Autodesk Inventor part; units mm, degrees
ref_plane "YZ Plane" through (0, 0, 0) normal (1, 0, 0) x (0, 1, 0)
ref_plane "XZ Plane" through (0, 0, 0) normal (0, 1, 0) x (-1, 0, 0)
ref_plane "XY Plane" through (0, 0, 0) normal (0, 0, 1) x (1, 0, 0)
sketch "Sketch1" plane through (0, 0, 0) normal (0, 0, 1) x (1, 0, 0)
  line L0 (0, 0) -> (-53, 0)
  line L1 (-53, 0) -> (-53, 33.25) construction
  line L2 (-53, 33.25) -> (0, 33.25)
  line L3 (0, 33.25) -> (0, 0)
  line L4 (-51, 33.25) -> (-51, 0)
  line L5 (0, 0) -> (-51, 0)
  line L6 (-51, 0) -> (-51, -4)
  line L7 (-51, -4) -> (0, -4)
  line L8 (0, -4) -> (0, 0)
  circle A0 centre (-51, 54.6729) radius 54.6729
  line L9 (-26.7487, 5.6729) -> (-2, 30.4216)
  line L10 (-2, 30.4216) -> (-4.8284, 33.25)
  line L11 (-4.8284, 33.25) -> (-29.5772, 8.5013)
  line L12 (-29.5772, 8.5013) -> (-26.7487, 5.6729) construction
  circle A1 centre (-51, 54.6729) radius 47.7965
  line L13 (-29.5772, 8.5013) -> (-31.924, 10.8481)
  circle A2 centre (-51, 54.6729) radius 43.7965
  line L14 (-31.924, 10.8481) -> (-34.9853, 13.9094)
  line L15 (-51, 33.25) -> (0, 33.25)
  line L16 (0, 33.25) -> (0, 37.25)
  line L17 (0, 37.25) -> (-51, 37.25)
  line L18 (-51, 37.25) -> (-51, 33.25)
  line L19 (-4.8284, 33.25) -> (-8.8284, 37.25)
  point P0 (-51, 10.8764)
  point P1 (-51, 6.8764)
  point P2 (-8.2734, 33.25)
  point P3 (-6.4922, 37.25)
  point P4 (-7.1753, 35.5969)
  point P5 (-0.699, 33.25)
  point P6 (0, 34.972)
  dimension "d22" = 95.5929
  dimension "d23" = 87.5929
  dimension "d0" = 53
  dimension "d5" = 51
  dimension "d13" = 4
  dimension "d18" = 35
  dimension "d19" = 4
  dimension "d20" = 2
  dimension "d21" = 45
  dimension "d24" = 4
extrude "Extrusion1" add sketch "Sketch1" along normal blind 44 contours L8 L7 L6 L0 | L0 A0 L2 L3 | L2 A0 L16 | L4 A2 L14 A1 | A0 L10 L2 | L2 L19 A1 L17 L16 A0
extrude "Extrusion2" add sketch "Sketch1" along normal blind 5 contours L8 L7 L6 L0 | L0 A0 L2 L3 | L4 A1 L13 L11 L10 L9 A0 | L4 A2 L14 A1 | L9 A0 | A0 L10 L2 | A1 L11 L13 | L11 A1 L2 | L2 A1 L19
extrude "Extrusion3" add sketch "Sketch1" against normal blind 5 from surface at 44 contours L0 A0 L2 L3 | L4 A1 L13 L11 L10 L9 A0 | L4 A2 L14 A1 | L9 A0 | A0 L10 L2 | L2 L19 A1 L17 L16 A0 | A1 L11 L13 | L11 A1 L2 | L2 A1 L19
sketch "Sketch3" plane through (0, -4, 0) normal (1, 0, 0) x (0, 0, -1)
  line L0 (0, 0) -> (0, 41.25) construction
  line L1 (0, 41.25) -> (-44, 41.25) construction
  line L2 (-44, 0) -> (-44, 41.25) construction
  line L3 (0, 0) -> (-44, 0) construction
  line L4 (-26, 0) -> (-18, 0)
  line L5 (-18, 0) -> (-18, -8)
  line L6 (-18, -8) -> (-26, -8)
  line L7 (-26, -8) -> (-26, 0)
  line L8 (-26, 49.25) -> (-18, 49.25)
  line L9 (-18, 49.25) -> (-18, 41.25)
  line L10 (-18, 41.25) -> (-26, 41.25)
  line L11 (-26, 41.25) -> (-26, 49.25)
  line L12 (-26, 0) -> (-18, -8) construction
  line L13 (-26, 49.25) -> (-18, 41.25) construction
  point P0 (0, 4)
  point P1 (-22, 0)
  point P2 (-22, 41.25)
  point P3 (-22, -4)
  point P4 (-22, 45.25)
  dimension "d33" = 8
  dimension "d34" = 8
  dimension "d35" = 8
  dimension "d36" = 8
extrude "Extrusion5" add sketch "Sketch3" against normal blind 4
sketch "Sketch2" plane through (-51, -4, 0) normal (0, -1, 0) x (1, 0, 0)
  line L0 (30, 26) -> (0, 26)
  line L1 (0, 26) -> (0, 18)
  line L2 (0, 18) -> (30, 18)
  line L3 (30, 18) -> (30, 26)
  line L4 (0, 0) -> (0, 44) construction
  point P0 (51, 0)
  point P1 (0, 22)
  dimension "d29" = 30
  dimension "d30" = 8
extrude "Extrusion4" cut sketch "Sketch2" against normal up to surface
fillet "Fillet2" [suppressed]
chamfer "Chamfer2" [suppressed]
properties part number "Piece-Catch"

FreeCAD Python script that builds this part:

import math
import FreeCAD as App
import Part
import Sketcher
Q = App.Units.Quantity

doc = App.newDocument("Part")
body = doc.addObject("PartDesign::Body", "Body")
body.AllowCompound = True

# Sketch on XY plane
sketch1 = body.newObject("Sketcher::SketchObject", "Sketch")
sketch1.AttachmentSupport = (doc.getObject("XY_Plane"), [""])
sketch1.MapMode = "FlatFace"
sketch1.addGeometry([
    Part.LineSegment(App.Vector(0, -4, 0), App.Vector(0, 37.2, 0)),  # 0
    Part.LineSegment(App.Vector(0, 37.2, 0), App.Vector(-6.5, 37.2, 0)),  # 1
    Part.ArcOfCircle(Part.Circle(App.Vector(-51, 54.7, 0), App.Vector(0, 0, 1), 47.8), math.radians(-23.52), math.radians(-21.38)),  # 2
    Part.LineSegment(App.Vector(-7.2, 35.6, 0), App.Vector(-2, 30.4, 0)),  # 3
    Part.ArcOfCircle(Part.Circle(App.Vector(-51, 54.7, 0), App.Vector(0, 0, 1), 54.7), math.radians(-90), math.radians(-26)),  # 4
    Part.LineSegment(App.Vector(-51, 0, 0), App.Vector(-51, -4, 0)),  # 5
    Part.LineSegment(App.Vector(-51, -4, 0), App.Vector(0, -4, 0)),  # 6
    Part.LineSegment(App.Vector(-51, 10.9, 0), App.Vector(-51, 6.9, 0)),  # 7
    Part.ArcOfCircle(Part.Circle(App.Vector(-51, 54.7, 0), App.Vector(0, 0, 1), 47.8), math.radians(-90), math.radians(-66)),  # 8
    Part.LineSegment(App.Vector(-31.9, 10.8, 0), App.Vector(-35, 13.9, 0)),  # 9
    Part.ArcOfCircle(Part.Circle(App.Vector(-51, 54.7, 0), App.Vector(0, 0, 1), 43.8), math.radians(-90), math.radians(-69)),  # 10
], False)
sketch1.addConstraint([
    Sketcher.Constraint("Coincident", 0, 2, 1, 1),
    Sketcher.Constraint("Coincident", 1, 2, 2, 2),
    Sketcher.Constraint("Coincident", 2, 1, 3, 1),
    Sketcher.Constraint("Coincident", 3, 2, 4, 2),
    Sketcher.Constraint("Coincident", 4, 1, 5, 1),
    Sketcher.Constraint("Coincident", 5, 2, 6, 1),
    Sketcher.Constraint("Coincident", 6, 2, 0, 1),
    Sketcher.Constraint("Coincident", 7, 2, 8, 1),
    Sketcher.Constraint("Coincident", 8, 2, 9, 1),
    Sketcher.Constraint("Coincident", 9, 2, 10, 2),
    Sketcher.Constraint("Coincident", 10, 1, 7, 1),
    Sketcher.Constraint("Vertical", 0),
    Sketcher.Constraint("Horizontal", 1),
    Sketcher.Constraint("Vertical", 5),
    Sketcher.Constraint("Horizontal", 6),
    Sketcher.Constraint("Vertical", 7),
    Sketcher.Constraint("Coincident", 4, 3, 2, 3),
    Sketcher.Constraint("Coincident", 8, 3, 2, 3),
    Sketcher.Constraint("Coincident", 10, 3, 2, 3),
    Sketcher.Constraint("Equal", 2, 8),
    Sketcher.Constraint("PointOnObject", 0, 2, -2),
    Sketcher.Constraint("PointOnObject", 4, 1, -1),
    Sketcher.Constraint("Parallel", 3, 9),
    Sketcher.Constraint("Vertical", 10, 3, 4, 1),
    Sketcher.Constraint("Vertical", 5, 2, 7, 2),
    Sketcher.Constraint("Equal", 5, 7),
    Sketcher.Constraint("DistanceX", 6, 1, 6, 2, Q("51 mm")),
    Sketcher.Constraint("DistanceY", 5, 2, 5, 1, Q("4 mm")),
    Sketcher.Constraint("Angle", 3, Q("-45 deg")),
    Sketcher.Constraint("DistanceX", 3, 2, -1, 1, Q("2 mm")),
    Sketcher.Constraint("Radius", 2, Q("47.7965 mm")),
    Sketcher.Constraint("Radius", 4, Q("54.673 mm")),
    Sketcher.Constraint("DistanceY", 0, 1, 0, 2, Q("41.25 mm")),
    Sketcher.Constraint("DistanceX", 9, 2, 2, 1, Q("27.81 mm")),
])
pad1 = body.newObject("PartDesign::Pad", "Pad")
pad1.Profile = sketch1
pad1.Length = 44

# Sketch on XY plane
sketch2 = body.newObject("Sketcher::SketchObject", "Sketch001")
sketch2.AttachmentSupport = (doc.getObject("XY_Plane"), [""])
sketch2.MapMode = "FlatFace"
sketch2.addGeometry([
    Part.LineSegment(App.Vector(0, -4, 0), App.Vector(0, 33.2, 0)),  # 0
    Part.LineSegment(App.Vector(0, 33.2, 0), App.Vector(-4.8, 33.2, 0)),  # 1
    Part.LineSegment(App.Vector(-4.8, 33.2, 0), App.Vector(-7.2, 35.6, 0)),  # 2
    Part.ArcOfCircle(Part.Circle(App.Vector(-51, 54.7, 0), App.Vector(0, 0, 1), 47.8), math.radians(-66), math.radians(-24)),  # 3
    Part.LineSegment(App.Vector(-31.9, 10.8, 0), App.Vector(-35, 13.9, 0)),  # 4
    Part.ArcOfCircle(Part.Circle(App.Vector(-51, 54.7, 0), App.Vector(0, 0, 1), 43.8), math.radians(-90), math.radians(-69)),  # 5
    Part.LineSegment(App.Vector(-51, 10.9, 0), App.Vector(-51, -4, 0)),  # 6
    Part.LineSegment(App.Vector(-51, -4, 0), App.Vector(0, -4, 0)),  # 7
], False)
sketch2.addConstraint([
    Sketcher.Constraint("Coincident", 0, 2, 1, 1),
    Sketcher.Constraint("Coincident", 1, 2, 2, 1),
    Sketcher.Constraint("Coincident", 2, 2, 3, 2),
    Sketcher.Constraint("Coincident", 3, 1, 4, 1),
    Sketcher.Constraint("Coincident", 4, 2, 5, 2),
    Sketcher.Constraint("Coincident", 5, 1, 6, 1),
    Sketcher.Constraint("Coincident", 6, 2, 7, 1),
    Sketcher.Constraint("Coincident", 7, 2, 0, 1),
    Sketcher.Constraint("Vertical", 0),
    Sketcher.Constraint("Horizontal", 1),
    Sketcher.Constraint("Vertical", 6),
    Sketcher.Constraint("Horizontal", 7),
    Sketcher.Constraint("Coincident", 5, 3, 3, 3),
    Sketcher.Constraint("PointOnObject", 0, 2, -2),
    Sketcher.Constraint("Parallel", 2, 4),
    Sketcher.Constraint("Vertical", 3, 3, 5, 1),
    Sketcher.Constraint("DistanceX", 7, 1, 7, 2, Q("51 mm")),
    Sketcher.Constraint("DistanceY", 6, 2, -1, 1, Q("4 mm")),
    Sketcher.Constraint("Radius", 3, Q("47.7965 mm")),
    Sketcher.Constraint("Radius", 5, Q("43.7965 mm")),
    Sketcher.Constraint("Angle", 2, Q("135 deg")),
    Sketcher.Constraint("DistanceY", 0, 1, 0, 2, Q("37.25 mm")),
    Sketcher.Constraint("DistanceX", 4, 2, 2, 2, Q("27.81 mm")),
    Sketcher.Constraint("Distance", 2, Q("3.319 mm")),
    Sketcher.Constraint("DistanceX", 1, 2, 1, 1, Q("4.8284 mm")),
])
pad2 = body.newObject("PartDesign::Pad", "Pad001")
pad2.Profile = sketch2
pad2.Length = 5

# Sketch on XY plane
sketch3 = body.newObject("Sketcher::SketchObject", "Sketch002")
sketch3.AttachmentSupport = (doc.getObject("XY_Plane"), [""])
sketch3.MapMode = "FlatFace"
sketch3.AttachmentOffset = App.Placement(App.Vector(0, 0, 44), App.Rotation())
sketch3.addGeometry([
    Part.LineSegment(App.Vector(-51, 0, 0), App.Vector(0, 0, 0)),  # 0
    Part.LineSegment(App.Vector(0, 0, 0), App.Vector(0, 33.2, 0)),  # 1
    Part.LineSegment(App.Vector(0, 33.2, 0), App.Vector(-0.7, 33.2, 0)),  # 2
    Part.ArcOfCircle(Part.Circle(App.Vector(-51, 54.7, 0), App.Vector(0, 0, 1), 54.7), math.radians(-23.07), math.radians(-21.12)),  # 3
    Part.LineSegment(App.Vector(0, 35, 0), App.Vector(0, 37.2, 0)),  # 4
    Part.LineSegment(App.Vector(0, 37.2, 0), App.Vector(-6.5, 37.2, 0)),  # 5
    Part.ArcOfCircle(Part.Circle(App.Vector(-51, 54.7, 0), App.Vector(0, 0, 1), 47.8), math.radians(-66), math.radians(-21)),  # 6
    Part.LineSegment(App.Vector(-31.9, 10.8, 0), App.Vector(-35, 13.9, 0)),  # 7
    Part.ArcOfCircle(Part.Circle(App.Vector(-51, 54.7, 0), App.Vector(0, 0, 1), 43.8), math.radians(-90), math.radians(-69)),  # 8
    Part.LineSegment(App.Vector(-51, 10.9, 0), App.Vector(-51, 0, 0)),  # 9
], False)
sketch3.addConstraint([
    Sketcher.Constraint("Coincident", 0, 2, 1, 1),
    Sketcher.Constraint("Coincident", 1, 2, 2, 1),
    Sketcher.Constraint("Coincident", 2, 2, 3, 1),
    Sketcher.Constraint("Coincident", 3, 2, 4, 1),
    Sketcher.Constraint("Coincident", 4, 2, 5, 1),
    Sketcher.Constraint("Coincident", 5, 2, 6, 2),
    Sketcher.Constraint("Coincident", 6, 1, 7, 1),
    Sketcher.Constraint("Coincident", 7, 2, 8, 2),
    Sketcher.Constraint("Coincident", 8, 1, 9, 1),
    Sketcher.Constraint("Coincident", 9, 2, 0, 1),
    Sketcher.Constraint("Horizontal", 0),
    Sketcher.Constraint("Vertical", 1),
    Sketcher.Constraint("Horizontal", 2),
    Sketcher.Constraint("Vertical", 4),
    Sketcher.Constraint("Horizontal", 5),
    Sketcher.Constraint("Vertical", 9),
    Sketcher.Constraint("Coincident", 0, 2, -1, 1),
    Sketcher.Constraint("Coincident", 6, 3, 3, 3),
    Sketcher.Constraint("Coincident", 8, 3, 3, 3),
    Sketcher.Constraint("PointOnObject", 3, 2, -2),
    Sketcher.Constraint("Vertical", 6, 3, 8, 1),
    Sketcher.Constraint("DistanceX", 0, 1, 0, 2, Q("51 mm")),
    Sketcher.Constraint("DistanceY", 1, 2, 4, 2, Q("4 mm")),
    Sketcher.Constraint("Radius", 6, Q("47.7965 mm")),
    Sketcher.Constraint("Radius", 8, Q("43.7965 mm")),
    Sketcher.Constraint("Angle", 7, Q("135 deg")),
    Sketcher.Constraint("Radius", 3, Q("54.673 mm")),
    Sketcher.Constraint("DistanceY", 1, 1, 1, 2, Q("33.25 mm")),
    Sketcher.Constraint("DistanceX", 2, 2, 2, 1, Q("0.699 mm")),
    Sketcher.Constraint("DistanceX", 6, 1, -1, 1, Q("31.924 mm")),
])
pad3 = body.newObject("PartDesign::Pad", "Pad002")
pad3.Profile = sketch3
pad3.Length = 5
pad3.Reversed = True

# Sketch on YZ plane
sketch4 = body.newObject("Sketcher::SketchObject", "Sketch003")
sketch4.AttachmentSupport = (doc.getObject("YZ_Plane"), [""])
sketch4.MapMode = "FlatFace"
sketch4.addGeometry([
    Part.LineSegment(App.Vector(-4, 18, 0), App.Vector(-4, 26, 0)),  # 0
    Part.LineSegment(App.Vector(-4, 26, 0), App.Vector(-12, 26, 0)),  # 1
    Part.LineSegment(App.Vector(-12, 26, 0), App.Vector(-12, 18, 0)),  # 2
    Part.LineSegment(App.Vector(-12, 18, 0), App.Vector(-4, 18, 0)),  # 3
    Part.LineSegment(App.Vector(45, 18, 0), App.Vector(45, 26, 0)),  # 4
    Part.LineSegment(App.Vector(45, 26, 0), App.Vector(37, 26, 0)),  # 5
    Part.LineSegment(App.Vector(37, 26, 0), App.Vector(37, 18, 0)),  # 6
    Part.LineSegment(App.Vector(37, 18, 0), App.Vector(45, 18, 0)),  # 7
], False)
sketch4.addConstraint([
    Sketcher.Constraint("Coincident", 0, 2, 1, 1),
    Sketcher.Constraint("Coincident", 1, 2, 2, 1),
    Sketcher.Constraint("Coincident", 2, 2, 3, 1),
    Sketcher.Constraint("Coincident", 3, 2, 0, 1),
    Sketcher.Constraint("Coincident", 4, 2, 5, 1),
    Sketcher.Constraint("Coincident", 5, 2, 6, 1),
    Sketcher.Constraint("Coincident", 6, 2, 7, 1),
    Sketcher.Constraint("Coincident", 7, 2, 4, 1),
    Sketcher.Constraint("Vertical", 0),
    Sketcher.Constraint("Horizontal", 1),
    Sketcher.Constraint("Vertical", 2),
    Sketcher.Constraint("Horizontal", 3),
    Sketcher.Constraint("Vertical", 4),
    Sketcher.Constraint("Horizontal", 5),
    Sketcher.Constraint("Vertical", 6),
    Sketcher.Constraint("Horizontal", 7),
    Sketcher.Constraint("Horizontal", 1, 2, 4, 2),
    Sketcher.Constraint("Horizontal", 3, 2, 6, 2),
    Sketcher.Constraint("Equal", 3, 5),
    Sketcher.Constraint("Equal", 7, 0),
    Sketcher.Constraint("DistanceX", 1, 2, 1, 1, Q("8 mm")),
    Sketcher.Constraint("DistanceX", 0, 2, -1, 1, Q("4 mm")),
    Sketcher.Constraint("DistanceY", -1, 1, 0, 2, Q("26 mm")),
    Sketcher.Constraint("DistanceX", -1, 1, 4, 2, Q("45.25 mm")),
])
pad4 = body.newObject("PartDesign::Pad", "Pad003")
pad4.Profile = sketch4
pad4.Length = 4
pad4.Reversed = True

# Sketch on XZ plane
sketch5 = body.newObject("Sketcher::SketchObject", "Sketch004")
sketch5.AttachmentSupport = (doc.getObject("XZ_Plane"), [""])
sketch5.MapMode = "FlatFace"
sketch5.AttachmentOffset = App.Placement(App.Vector(0, 0, 4), App.Rotation())
sketch5.addGeometry([
    Part.LineSegment(App.Vector(-21, 18, 0), App.Vector(-21, 26, 0)),
    Part.LineSegment(App.Vector(-21, 26, 0), App.Vector(-51, 26, 0)),
    Part.LineSegment(App.Vector(-51, 26, 0), App.Vector(-51, 18, 0)),
    Part.LineSegment(App.Vector(-51, 18, 0), App.Vector(-21, 18, 0)),
], False)
sketch5.addConstraint([
    Sketcher.Constraint("Coincident", 0, 2, 1, 1),
    Sketcher.Constraint("Coincident", 1, 2, 2, 1),
    Sketcher.Constraint("Coincident", 2, 2, 3, 1),
    Sketcher.Constraint("Coincident", 3, 2, 0, 1),
    Sketcher.Constraint("Vertical", 0),
    Sketcher.Constraint("Horizontal", 1),
    Sketcher.Constraint("Vertical", 2),
    Sketcher.Constraint("Horizontal", 3),
    Sketcher.Constraint("DistanceX", 1, 2, 1, 1, Q("30 mm")),
    Sketcher.Constraint("DistanceY", 0, 1, 0, 2, Q("8 mm")),
    Sketcher.Constraint("DistanceX", 0, 2, -1, 1, Q("21 mm")),
    Sketcher.Constraint("DistanceY", -1, 1, 0, 2, Q("26 mm")),
])
pocket1 = body.newObject("PartDesign::Pocket", "Pocket")
pocket1.Profile = sketch5
pocket1.Type = "UpToFirst"

doc.recompute()
